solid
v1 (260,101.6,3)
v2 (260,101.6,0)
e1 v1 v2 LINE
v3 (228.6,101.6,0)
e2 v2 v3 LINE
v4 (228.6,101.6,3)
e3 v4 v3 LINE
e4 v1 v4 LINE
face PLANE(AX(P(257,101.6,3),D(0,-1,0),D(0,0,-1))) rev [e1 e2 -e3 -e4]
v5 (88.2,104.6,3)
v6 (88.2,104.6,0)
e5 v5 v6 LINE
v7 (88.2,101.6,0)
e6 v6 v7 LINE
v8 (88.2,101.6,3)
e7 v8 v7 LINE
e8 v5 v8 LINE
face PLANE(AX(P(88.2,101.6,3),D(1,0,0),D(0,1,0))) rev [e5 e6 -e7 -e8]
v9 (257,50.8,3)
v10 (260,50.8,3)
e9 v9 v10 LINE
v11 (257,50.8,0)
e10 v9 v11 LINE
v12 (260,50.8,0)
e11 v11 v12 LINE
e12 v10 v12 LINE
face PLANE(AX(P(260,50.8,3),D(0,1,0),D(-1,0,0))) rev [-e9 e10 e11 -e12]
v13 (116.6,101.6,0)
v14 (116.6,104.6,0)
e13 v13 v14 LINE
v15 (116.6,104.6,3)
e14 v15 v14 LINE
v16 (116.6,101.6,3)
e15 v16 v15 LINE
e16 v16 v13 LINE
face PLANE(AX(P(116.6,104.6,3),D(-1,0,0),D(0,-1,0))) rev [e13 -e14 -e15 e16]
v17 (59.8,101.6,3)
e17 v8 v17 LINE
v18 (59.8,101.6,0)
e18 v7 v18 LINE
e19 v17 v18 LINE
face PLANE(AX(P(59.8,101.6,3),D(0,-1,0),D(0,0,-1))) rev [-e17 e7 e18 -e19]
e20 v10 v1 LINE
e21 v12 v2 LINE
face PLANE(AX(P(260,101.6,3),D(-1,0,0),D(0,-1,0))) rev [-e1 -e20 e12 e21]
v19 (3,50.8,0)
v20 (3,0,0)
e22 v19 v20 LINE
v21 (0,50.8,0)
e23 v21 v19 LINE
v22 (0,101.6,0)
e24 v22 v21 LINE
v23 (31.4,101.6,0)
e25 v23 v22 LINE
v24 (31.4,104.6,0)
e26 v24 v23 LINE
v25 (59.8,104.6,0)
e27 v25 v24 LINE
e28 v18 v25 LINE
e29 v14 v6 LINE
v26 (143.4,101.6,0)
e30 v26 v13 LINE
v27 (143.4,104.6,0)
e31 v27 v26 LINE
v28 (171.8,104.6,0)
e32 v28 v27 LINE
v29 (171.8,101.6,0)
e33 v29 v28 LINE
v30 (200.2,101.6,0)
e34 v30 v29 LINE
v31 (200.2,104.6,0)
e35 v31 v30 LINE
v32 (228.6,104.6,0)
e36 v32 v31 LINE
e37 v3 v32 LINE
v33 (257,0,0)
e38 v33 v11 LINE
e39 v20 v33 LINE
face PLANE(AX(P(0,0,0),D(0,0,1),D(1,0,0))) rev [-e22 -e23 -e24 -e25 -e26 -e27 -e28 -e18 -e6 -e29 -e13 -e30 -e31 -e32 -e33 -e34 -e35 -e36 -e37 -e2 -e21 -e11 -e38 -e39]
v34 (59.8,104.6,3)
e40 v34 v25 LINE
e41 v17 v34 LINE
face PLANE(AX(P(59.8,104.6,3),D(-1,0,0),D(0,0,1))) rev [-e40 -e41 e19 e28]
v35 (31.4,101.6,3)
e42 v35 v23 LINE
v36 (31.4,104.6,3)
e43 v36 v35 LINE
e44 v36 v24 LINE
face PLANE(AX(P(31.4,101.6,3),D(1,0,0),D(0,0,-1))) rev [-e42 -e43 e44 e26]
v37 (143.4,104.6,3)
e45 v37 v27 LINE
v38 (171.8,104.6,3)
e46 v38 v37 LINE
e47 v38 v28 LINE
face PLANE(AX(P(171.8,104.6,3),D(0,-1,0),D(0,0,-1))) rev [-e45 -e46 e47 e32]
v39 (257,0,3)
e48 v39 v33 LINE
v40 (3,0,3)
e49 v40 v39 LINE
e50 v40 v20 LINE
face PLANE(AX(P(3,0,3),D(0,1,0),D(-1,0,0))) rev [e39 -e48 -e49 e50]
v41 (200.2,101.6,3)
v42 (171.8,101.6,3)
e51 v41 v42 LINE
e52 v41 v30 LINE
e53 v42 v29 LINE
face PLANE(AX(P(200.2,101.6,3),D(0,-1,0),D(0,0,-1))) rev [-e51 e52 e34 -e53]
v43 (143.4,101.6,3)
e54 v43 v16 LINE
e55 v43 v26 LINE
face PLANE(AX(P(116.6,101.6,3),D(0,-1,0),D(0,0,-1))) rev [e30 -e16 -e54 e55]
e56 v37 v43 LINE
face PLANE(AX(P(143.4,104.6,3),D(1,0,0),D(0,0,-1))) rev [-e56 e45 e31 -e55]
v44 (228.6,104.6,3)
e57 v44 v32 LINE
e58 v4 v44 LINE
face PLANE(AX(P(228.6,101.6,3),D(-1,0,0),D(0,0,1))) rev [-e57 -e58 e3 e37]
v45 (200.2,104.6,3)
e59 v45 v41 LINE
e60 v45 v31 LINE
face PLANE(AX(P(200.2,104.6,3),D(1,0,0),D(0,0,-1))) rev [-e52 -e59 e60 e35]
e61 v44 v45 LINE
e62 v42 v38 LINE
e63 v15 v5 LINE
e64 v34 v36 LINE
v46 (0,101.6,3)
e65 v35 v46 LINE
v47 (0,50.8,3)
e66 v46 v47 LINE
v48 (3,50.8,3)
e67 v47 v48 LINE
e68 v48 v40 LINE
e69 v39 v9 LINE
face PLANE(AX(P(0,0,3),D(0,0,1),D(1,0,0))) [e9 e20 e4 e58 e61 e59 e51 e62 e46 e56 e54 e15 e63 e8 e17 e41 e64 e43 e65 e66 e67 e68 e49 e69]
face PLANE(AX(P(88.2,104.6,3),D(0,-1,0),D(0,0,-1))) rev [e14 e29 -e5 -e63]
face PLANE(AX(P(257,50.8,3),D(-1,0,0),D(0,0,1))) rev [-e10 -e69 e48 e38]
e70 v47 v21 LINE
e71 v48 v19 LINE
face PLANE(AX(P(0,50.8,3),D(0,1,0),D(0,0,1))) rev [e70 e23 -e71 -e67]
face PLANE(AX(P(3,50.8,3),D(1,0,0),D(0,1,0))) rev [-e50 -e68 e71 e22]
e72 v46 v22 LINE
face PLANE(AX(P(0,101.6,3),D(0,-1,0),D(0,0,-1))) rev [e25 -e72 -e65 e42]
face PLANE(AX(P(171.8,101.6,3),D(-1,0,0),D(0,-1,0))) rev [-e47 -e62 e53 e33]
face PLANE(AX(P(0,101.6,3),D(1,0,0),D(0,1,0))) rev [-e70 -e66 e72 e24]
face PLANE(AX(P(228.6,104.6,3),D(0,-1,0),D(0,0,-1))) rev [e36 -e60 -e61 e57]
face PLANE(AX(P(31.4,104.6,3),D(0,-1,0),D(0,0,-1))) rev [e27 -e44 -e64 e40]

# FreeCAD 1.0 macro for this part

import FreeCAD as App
import Part
import Sketcher

V = App.Vector

doc = App.newDocument("Part")
body = doc.addObject("PartDesign::Body", "Body")

sketch1 = doc.addObject("Sketcher::SketchObject", "Sketch")
body.addObject(sketch1)
sketch1.AttachmentSupport = (doc.XY_Plane, [""])
sketch1.MapMode = "FlatFace"
sketch1.addGeometry(Part.LineSegment(V(0, 101.6, 0), V(0, 50.8, 0)), False)
sketch1.addGeometry(Part.LineSegment(V(0, 50.8, 0), V(3, 50.8, 0)), False)
sketch1.addGeometry(Part.LineSegment(V(3, 50.8, 0), V(3, 0, 0)), False)
sketch1.addGeometry(Part.LineSegment(V(3, 0, 0), V(257, 0, 0)), False)
sketch1.addGeometry(Part.LineSegment(V(257, 0, 0), V(257, 50.8, 0)), False)
sketch1.addGeometry(Part.LineSegment(V(257, 50.8, 0), V(260, 50.8, 0)), False)
sketch1.addGeometry(Part.LineSegment(V(260, 50.8, 0), V(260, 101.6, 0)), False)
sketch1.addGeometry(Part.LineSegment(V(260, 101.6, 0), V(228.6, 101.6, 0)), False)
sketch1.addGeometry(Part.LineSegment(V(228.6, 101.6, 0), V(228.6, 104.6, 0)), False)
sketch1.addGeometry(Part.LineSegment(V(228.6, 104.6, 0), V(200.2, 104.6, 0)), False)
sketch1.addGeometry(Part.LineSegment(V(200.2, 104.6, 0), V(200.2, 101.6, 0)), False)
sketch1.addGeometry(Part.LineSegment(V(200.2, 101.6, 0), V(171.8, 101.6, 0)), False)
sketch1.addGeometry(Part.LineSegment(V(171.8, 101.6, 0), V(171.8, 104.6, 0)), False)
sketch1.addGeometry(Part.LineSegment(V(171.8, 104.6, 0), V(143.4, 104.6, 0)), False)
sketch1.addGeometry(Part.LineSegment(V(143.4, 104.6, 0), V(143.4, 101.6, 0)), False)
sketch1.addGeometry(Part.LineSegment(V(143.4, 101.6, 0), V(116.6, 101.6, 0)), False)
sketch1.addGeometry(Part.LineSegment(V(116.6, 101.6, 0), V(116.6, 104.6, 0)), False)
sketch1.addGeometry(Part.LineSegment(V(116.6, 104.6, 0), V(88.2, 104.6, 0)), False)
sketch1.addGeometry(Part.LineSegment(V(88.2, 104.6, 0), V(88.2, 101.6, 0)), False)
sketch1.addGeometry(Part.LineSegment(V(88.2, 101.6, 0), V(59.8, 101.6, 0)), False)
sketch1.addGeometry(Part.LineSegment(V(59.8, 101.6, 0), V(59.8, 104.6, 0)), False)
sketch1.addGeometry(Part.LineSegment(V(59.8, 104.6, 0), V(31.4, 104.6, 0)), False)
sketch1.addGeometry(Part.LineSegment(V(31.4, 104.6, 0), V(31.4, 101.6, 0)), False)
sketch1.addGeometry(Part.LineSegment(V(31.4, 101.6, 0), V(0, 101.6, 0)), False)
sketch1.addConstraint(Sketcher.Constraint("Coincident", 0, 2, 1, 1))
sketch1.addConstraint(Sketcher.Constraint("Coincident", 1, 2, 2, 1))
sketch1.addConstraint(Sketcher.Constraint("Coincident", 2, 2, 3, 1))
sketch1.addConstraint(Sketcher.Constraint("Coincident", 3, 2, 4, 1))
sketch1.addConstraint(Sketcher.Constraint("Coincident", 4, 2, 5, 1))
sketch1.addConstraint(Sketcher.Constraint("Coincident", 5, 2, 6, 1))
sketch1.addConstraint(Sketcher.Constraint("Coincident", 6, 2, 7, 1))
sketch1.addConstraint(Sketcher.Constraint("Coincident", 7, 2, 8, 1))
sketch1.addConstraint(Sketcher.Constraint("Coincident", 8, 2, 9, 1))
sketch1.addConstraint(Sketcher.Constraint("Coincident", 9, 2, 10, 1))
sketch1.addConstraint(Sketcher.Constraint("Coincident", 10, 2, 11, 1))
sketch1.addConstraint(Sketcher.Constraint("Coincident", 11, 2, 12, 1))
sketch1.addConstraint(Sketcher.Constraint("Coincident", 12, 2, 13, 1))
sketch1.addConstraint(Sketcher.Constraint("Coincident", 13, 2, 14, 1))
sketch1.addConstraint(Sketcher.Constraint("Coincident", 14, 2, 15, 1))
sketch1.addConstraint(Sketcher.Constraint("Coincident", 15, 2, 16, 1))
sketch1.addConstraint(Sketcher.Constraint("Coincident", 16, 2, 17, 1))
sketch1.addConstraint(Sketcher.Constraint("Coincident", 17, 2, 18, 1))
sketch1.addConstraint(Sketcher.Constraint("Coincident", 18, 2, 19, 1))
sketch1.addConstraint(Sketcher.Constraint("Coincident", 19, 2, 20, 1))
sketch1.addConstraint(Sketcher.Constraint("Coincident", 20, 2, 21, 1))
sketch1.addConstraint(Sketcher.Constraint("Coincident", 21, 2, 22, 1))
sketch1.addConstraint(Sketcher.Constraint("Coincident", 22, 2, 23, 1))
sketch1.addConstraint(Sketcher.Constraint("Coincident", 23, 2, 0, 1))
sketch1.addConstraint(Sketcher.Constraint("Vertical", 0))
sketch1.addConstraint(Sketcher.Constraint("Horizontal", 1))
sketch1.addConstraint(Sketcher.Constraint("Vertical", 2))
sketch1.addConstraint(Sketcher.Constraint("Horizontal", 3))
sketch1.addConstraint(Sketcher.Constraint("Vertical", 4))
sketch1.addConstraint(Sketcher.Constraint("Horizontal", 5))
sketch1.addConstraint(Sketcher.Constraint("Vertical", 6))
sketch1.addConstraint(Sketcher.Constraint("Horizontal", 7))
sketch1.addConstraint(Sketcher.Constraint("Vertical", 8))
sketch1.addConstraint(Sketcher.Constraint("Horizontal", 9))
sketch1.addConstraint(Sketcher.Constraint("Vertical", 10))
sketch1.addConstraint(Sketcher.Constraint("Horizontal", 11))
sketch1.addConstraint(Sketcher.Constraint("Vertical", 12))
sketch1.addConstraint(Sketcher.Constraint("Horizontal", 13))
sketch1.addConstraint(Sketcher.Constraint("Vertical", 14))
sketch1.addConstraint(Sketcher.Constraint("Horizontal", 15))
sketch1.addConstraint(Sketcher.Constraint("Vertical", 16))
sketch1.addConstraint(Sketcher.Constraint("Horizontal", 17))
sketch1.addConstraint(Sketcher.Constraint("Vertical", 18))
sketch1.addConstraint(Sketcher.Constraint("Horizontal", 19))
sketch1.addConstraint(Sketcher.Constraint("Vertical", 20))
sketch1.addConstraint(Sketcher.Constraint("Horizontal", 21))
sketch1.addConstraint(Sketcher.Constraint("Vertical", 22))
sketch1.addConstraint(Sketcher.Constraint("Horizontal", 23))
sketch1.addConstraint(Sketcher.Constraint("PointOnObject", 0, 2, -2))
sketch1.addConstraint(Sketcher.Constraint("PointOnObject", 2, 2, -1))
sketch1.addConstraint(Sketcher.Constraint("Horizontal", 1, 2, 4, 2))
sketch1.addConstraint(Sketcher.Constraint("Horizontal", 7, 2, 10, 2))
sketch1.addConstraint(Sketcher.Constraint("Horizontal", 9, 2, 12, 2))
sketch1.addConstraint(Sketcher.Constraint("Horizontal", 11, 2, 14, 2))
sketch1.addConstraint(Sketcher.Constraint("Horizontal", 13, 2, 16, 2))
sketch1.addConstraint(Sketcher.Constraint("Horizontal", 15, 2, 18, 2))
sketch1.addConstraint(Sketcher.Constraint("Horizontal", 17, 2, 20, 2))
sketch1.addConstraint(Sketcher.Constraint("Horizontal", 19, 2, 22, 2))
sketch1.addConstraint(Sketcher.Constraint("Equal", 1, 5))
sketch1.addConstraint(Sketcher.Constraint("Equal", 9, 11))
sketch1.addConstraint(Sketcher.Constraint("Equal", 11, 13))
sketch1.addConstraint(Sketcher.Constraint("Equal", 13, 17))
sketch1.addConstraint(Sketcher.Constraint("Equal", 17, 19))
sketch1.addConstraint(Sketcher.Constraint("Equal", 19, 21))
sketch1.addConstraint(Sketcher.Constraint("Equal", 7, 23))
sketch1.addConstraint(Sketcher.Constraint("Equal", 0, 2))
sketch1.addConstraint(Sketcher.Constraint("Equal", 5, 8))
sketch1.addConstraint(Sketcher.Constraint("DistanceX", 1, 1, 1, 2, 3.0))
sketch1.addConstraint(Sketcher.Constraint("DistanceX", 3, 1, 3, 2, 254.0))
sketch1.addConstraint(Sketcher.Constraint("DistanceX", 7, 2, 7, 1, 31.4))
sketch1.addConstraint(Sketcher.Constraint("DistanceX", 9, 2, 9, 1, 28.4))
sketch1.addConstraint(Sketcher.Constraint("DistanceY", 0, 2, 0, 1, 50.8))
pad1 = doc.addObject("PartDesign::Pad", "Pad")
body.addObject(pad1)
pad1.Profile = sketch1
pad1.Length = 3

doc.recompute()
